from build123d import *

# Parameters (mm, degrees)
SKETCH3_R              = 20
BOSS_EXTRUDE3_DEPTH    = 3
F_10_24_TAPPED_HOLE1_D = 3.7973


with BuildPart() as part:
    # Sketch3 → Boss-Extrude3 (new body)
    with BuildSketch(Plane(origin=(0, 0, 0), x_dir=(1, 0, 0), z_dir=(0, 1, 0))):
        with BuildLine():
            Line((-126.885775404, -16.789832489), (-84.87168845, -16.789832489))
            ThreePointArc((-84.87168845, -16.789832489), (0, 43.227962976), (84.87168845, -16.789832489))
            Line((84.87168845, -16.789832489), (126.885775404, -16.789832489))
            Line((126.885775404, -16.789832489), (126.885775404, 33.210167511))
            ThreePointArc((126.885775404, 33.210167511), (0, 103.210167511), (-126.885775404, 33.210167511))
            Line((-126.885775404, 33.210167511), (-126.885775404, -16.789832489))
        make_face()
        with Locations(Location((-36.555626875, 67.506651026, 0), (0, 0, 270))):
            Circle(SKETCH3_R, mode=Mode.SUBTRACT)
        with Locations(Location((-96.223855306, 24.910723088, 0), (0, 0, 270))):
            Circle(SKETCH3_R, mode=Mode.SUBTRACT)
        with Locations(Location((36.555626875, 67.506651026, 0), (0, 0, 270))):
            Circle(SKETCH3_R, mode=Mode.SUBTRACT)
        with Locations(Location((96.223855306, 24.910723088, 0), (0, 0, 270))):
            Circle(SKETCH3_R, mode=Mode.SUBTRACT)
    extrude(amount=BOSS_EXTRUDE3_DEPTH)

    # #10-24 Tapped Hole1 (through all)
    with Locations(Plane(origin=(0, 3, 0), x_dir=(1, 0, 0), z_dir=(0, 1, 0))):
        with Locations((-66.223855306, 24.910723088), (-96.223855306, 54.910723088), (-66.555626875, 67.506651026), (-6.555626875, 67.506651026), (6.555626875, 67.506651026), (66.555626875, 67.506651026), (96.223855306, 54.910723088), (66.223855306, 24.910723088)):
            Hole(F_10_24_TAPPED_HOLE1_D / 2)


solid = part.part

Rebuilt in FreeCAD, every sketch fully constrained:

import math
import FreeCAD as App
import Part
import Sketcher
Q = App.Units.Quantity

doc = App.newDocument("Part")
body = doc.addObject("PartDesign::Body", "Body")

sketch1 = doc.addObject("Sketcher::SketchObject", "Sketch")
body.addObject(sketch1)
sketch1.AttachmentSupport = (doc.XZ_Plane, [""])
sketch1.MapMode = "FlatFace"
sketch1.addGeometry([
    Part.LineSegment(App.Vector(-127, 17, 0), App.Vector(-85, 17, 0)),
    Part.ArcOfCircle(Part.Circle(App.Vector(0, 47, 0), App.Vector(0, 0, 1), 90), math.radians(-161), math.radians(-19)),
    Part.LineSegment(App.Vector(85, 17, 0), App.Vector(127, 17, 0)),
    Part.LineSegment(App.Vector(127, 17, 0), App.Vector(127, -33, 0)),
    Part.ArcOfCircle(Part.Circle(App.Vector(0, 47, 0), App.Vector(0, 0, 1), 150), math.radians(-148), math.radians(-32)),
    Part.LineSegment(App.Vector(-127, -33, 0), App.Vector(-127, 17, 0)),
    Part.Circle(App.Vector(-96, -25, 0), App.Vector(0, 0, 1), 20),
    Part.Circle(App.Vector(96, -25, 0), App.Vector(0, 0, 1), 20),
    Part.Circle(App.Vector(-37, -68, 0), App.Vector(0, 0, 1), 20),
    Part.Circle(App.Vector(37, -68, 0), App.Vector(0, 0, 1), 20),
], False)
sketch1.addConstraint([
    Sketcher.Constraint("Coincident", 0, 2, 1, 1),
    Sketcher.Constraint("Coincident", 1, 2, 2, 1),
    Sketcher.Constraint("Coincident", 2, 2, 3, 1),
    Sketcher.Constraint("Coincident", 3, 2, 4, 2),
    Sketcher.Constraint("Coincident", 4, 1, 5, 1),
    Sketcher.Constraint("Coincident", 5, 2, 0, 1),
    Sketcher.Constraint("Horizontal", 0),
    Sketcher.Constraint("Horizontal", 2),
    Sketcher.Constraint("Vertical", 3),
    Sketcher.Constraint("Vertical", 5),
    Sketcher.Constraint("Coincident", 4, 3, 1, 3),
    Sketcher.Constraint("Equal", 6, 7),
    Sketcher.Constraint("Equal", 7, 8),
    Sketcher.Constraint("Equal", 8, 9),
    Sketcher.Constraint("Symmetric", 6, 3, 7, 3, -2),
    Sketcher.Constraint("Symmetric", 8, 3, 9, 3, -2),
    Sketcher.Constraint("Symmetric", 0, 2, 1, 2, -2),
    Sketcher.Constraint("Horizontal", 3, 2, 4, 1),
    Sketcher.Constraint("Diameter", 6, Q("40 mm")),
    Sketcher.Constraint("Radius", 4, Q("150 mm")),
    Sketcher.Constraint("DistanceY", 3, 2, 3, 1, Q("50 mm")),
    Sketcher.Constraint("DistanceY", 0, 2, 4, 3, Q("30 mm")),
    Sketcher.Constraint("Radius", 1, Q("90.017795 mm")),
    Sketcher.Constraint("DistanceY", 8, 3, -1, 1, Q("67.506651 mm")),
    Sketcher.Constraint("DistanceX", 6, 3, 7, 3, Q("192.447711 mm")),
    Sketcher.Constraint("DistanceX", 6, 3, 8, 3, Q("59.668228 mm")),
    Sketcher.Constraint("DistanceY", -1, 1, 1, 3, Q("46.789832 mm")),
    Sketcher.Constraint("DistanceY", 6, 3, -1, 1, Q("24.910723 mm")),
])
pad1 = doc.addObject("PartDesign::Pad", "Pad")
body.addObject(pad1)
pad1.Profile = sketch1
pad1.Length = 3
pad1.Reversed = True

sketch2 = doc.addObject("Sketcher::SketchObject", "Sketch001")
body.addObject(sketch2)
sketch2.AttachmentSupport = (doc.XZ_Plane, [""])
sketch2.MapMode = "FlatFace"
sketch2.AttachmentOffset = App.Placement(App.Vector(0, 0, -3), App.Rotation())
sketch2.addGeometry([
    Part.Circle(App.Vector(-66.2, -24.9, 0), App.Vector(0, 0, 1), 1.9),
    Part.Circle(App.Vector(-96.2, -54.9, 0), App.Vector(0, 0, 1), 1.9),
    Part.Circle(App.Vector(-66.6, -67.5, 0), App.Vector(0, 0, 1), 1.9),
    Part.Circle(App.Vector(-6.6, -67.5, 0), App.Vector(0, 0, 1), 1.9),
    Part.Circle(App.Vector(6.6, -67.5, 0), App.Vector(0, 0, 1), 1.9),
    Part.Circle(App.Vector(66.6, -67.5, 0), App.Vector(0, 0, 1), 1.9),
    Part.Circle(App.Vector(96.2, -54.9, 0), App.Vector(0, 0, 1), 1.9),
    Part.Circle(App.Vector(66.2, -24.9, 0), App.Vector(0, 0, 1), 1.9),
], False)
sketch2.addConstraint([
    Sketcher.Constraint("Equal", 0, 1),
    Sketcher.Constraint("Equal", 1, 2),
    Sketcher.Constraint("Equal", 2, 3),
    Sketcher.Constraint("Equal", 3, 4),
    Sketcher.Constraint("Equal", 4, 5),
    Sketcher.Constraint("Equal", 5, 6),
    Sketcher.Constraint("Equal", 6, 7),
    Sketcher.Constraint("Symmetric", 3, 3, 4, 3, -2),
    Sketcher.Constraint("Symmetric", 2, 3, 5, 3, -2),
    Sketcher.Constraint("Symmetric", 1, 3, 6, 3, -2),
    Sketcher.Constraint("Symmetric", 0, 3, 7, 3, -2),
    Sketcher.Constraint("Horizontal", 2, 3, 3, 3),
    Sketcher.Constraint("DistanceX", 1, 3, 0, 3, Q("30 mm")),
    Sketcher.Constraint("DistanceY", 1, 3, 0, 3, Q("30 mm")),
    Sketcher.Constraint("DistanceX", 2, 3, 3, 3, Q("60 mm")),
    Sketcher.Constraint("Diameter", 0, Q("3.7973 mm")),
    Sketcher.Constraint("DistanceY", 2, 3, -1, 1, Q("67.506651 mm")),
    Sketcher.Constraint("DistanceX", 1, 3, 2, 3, Q("29.668228 mm")),
    Sketcher.Constraint("DistanceX", 0, 3, 6, 3, Q("162.447711 mm")),
    Sketcher.Constraint("DistanceY", 0, 3, -1, 1, Q("24.910723 mm")),
])
doc.recompute()
hole = doc.addObject("PartDesign::Hole", "Hole")
body.addObject(hole)
hole.Profile = sketch2
hole.ThreadType = "None"
hole.Diameter = 3.7973
hole.DepthType = "ThroughAll"
hole.Reversed = True

doc.recompute()
